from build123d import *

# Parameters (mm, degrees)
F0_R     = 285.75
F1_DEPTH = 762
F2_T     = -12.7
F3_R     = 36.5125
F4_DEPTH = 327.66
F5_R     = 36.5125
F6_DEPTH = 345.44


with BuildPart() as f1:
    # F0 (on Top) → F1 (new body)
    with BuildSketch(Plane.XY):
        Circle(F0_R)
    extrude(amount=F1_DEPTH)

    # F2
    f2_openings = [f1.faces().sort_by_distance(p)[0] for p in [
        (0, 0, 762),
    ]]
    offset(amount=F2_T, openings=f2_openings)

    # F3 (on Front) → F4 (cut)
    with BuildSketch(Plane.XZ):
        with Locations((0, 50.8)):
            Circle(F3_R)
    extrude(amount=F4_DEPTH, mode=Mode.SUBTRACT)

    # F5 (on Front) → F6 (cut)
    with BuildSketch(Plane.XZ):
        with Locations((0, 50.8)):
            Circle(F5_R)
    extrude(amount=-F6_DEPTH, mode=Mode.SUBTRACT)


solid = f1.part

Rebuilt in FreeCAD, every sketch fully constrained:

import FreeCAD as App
import Part
import Sketcher
Q = App.Units.Quantity


def faces_at(feature, points):
    """Names of the faces that lie closest to the given points."""
    faces = feature.Shape.Faces
    near = lambda p: min(range(len(faces)), key=lambda i: faces[i].distToShape(Part.Vertex(*p))[0])
    return sorted({f"Face{near(p) + 1}" for p in points})

doc = App.newDocument("Part")
params = doc.addObject("Spreadsheet::Sheet", "Params")
for row, (alias, value) in enumerate([
    ("sketch1_diameter", "22.5 in"),
    ("pad1_length", "30 in"),
    ("thickness_wall", "0.5 in"),
    ("sketch2_diameter", "2.875 in"),
    ("pocket1_length", "12.9 in"),
    ("sketch3_diameter", "2.875 in"),
    ("pocket2_length", "13.6 in"),
], start=1):
    params.set(f"A{row}", alias)
    params.set(f"B{row}", "=" + value)
    params.setAlias(f"B{row}", alias)

body = doc.addObject("PartDesign::Body", "Body")

# Sketch on XY plane
sketch1 = body.newObject("Sketcher::SketchObject", "Sketch")
sketch1.AttachmentSupport = (doc.getObject("XY_Plane"), [""])
sketch1.MapMode = "FlatFace"
sketch1.addGeometry(Part.Circle(App.Vector(0, 0, 0), App.Vector(0, 0, 1), 286), False)
sketch1.addConstraint([
    Sketcher.Constraint("Coincident", 0, 3, -1, 1),
    Sketcher.Constraint("Diameter", 0, Q("22.5 in")),
])
sketch1.setExpression("Constraints[1]", "Params.sketch1_diameter")
pad1 = body.newObject("PartDesign::Pad", "Pad")
pad1.Profile = sketch1
pad1.setExpression("Length", "Params.pad1_length")
doc.recompute()

thickness = body.newObject("PartDesign::Thickness", "Thickness")
thickness.Base = (pad1, faces_at(pad1, [(0, 0, 762)]))
thickness.setExpression("Value", "Params.thickness_wall")
thickness.Reversed = True
thickness.Join = "Arc"

# Sketch on XZ plane
sketch2 = body.newObject("Sketcher::SketchObject", "Sketch001")
sketch2.AttachmentSupport = (doc.getObject("XZ_Plane"), [""])
sketch2.MapMode = "FlatFace"
sketch2.addGeometry(Part.Circle(App.Vector(0, 51, 0), App.Vector(0, 0, 1), 37), False)
sketch2.addConstraint([
    Sketcher.Constraint("PointOnObject", 0, 3, -2),
    Sketcher.Constraint("Diameter", 0, Q("2.875 in")),
    Sketcher.Constraint("DistanceY", -1, 1, 0, 3, Q("2 in")),
])
sketch2.setExpression("Constraints[1]", "Params.sketch2_diameter")
pocket1 = body.newObject("PartDesign::Pocket", "Pocket")
pocket1.Profile = sketch2
pocket1.setExpression("Length", "Params.pocket1_length")
pocket1.Reversed = True

# Sketch on XZ plane
sketch3 = body.newObject("Sketcher::SketchObject", "Sketch002")
sketch3.AttachmentSupport = (doc.getObject("XZ_Plane"), [""])
sketch3.MapMode = "FlatFace"
sketch3.addGeometry(Part.Circle(App.Vector(0, 51, 0), App.Vector(0, 0, 1), 37), False)
sketch3.addConstraint([
    Sketcher.Constraint("PointOnObject", 0, 3, -2),
    Sketcher.Constraint("Diameter", 0, Q("2.875 in")),
    Sketcher.Constraint("DistanceY", -1, 1, 0, 3, Q("2 in")),
])
sketch3.setExpression("Constraints[1]", "Params.sketch3_diameter")
pocket2 = body.newObject("PartDesign::Pocket", "Pocket001")
pocket2.Profile = sketch3
pocket2.setExpression("Length", "Params.pocket2_length")

doc.recompute()
